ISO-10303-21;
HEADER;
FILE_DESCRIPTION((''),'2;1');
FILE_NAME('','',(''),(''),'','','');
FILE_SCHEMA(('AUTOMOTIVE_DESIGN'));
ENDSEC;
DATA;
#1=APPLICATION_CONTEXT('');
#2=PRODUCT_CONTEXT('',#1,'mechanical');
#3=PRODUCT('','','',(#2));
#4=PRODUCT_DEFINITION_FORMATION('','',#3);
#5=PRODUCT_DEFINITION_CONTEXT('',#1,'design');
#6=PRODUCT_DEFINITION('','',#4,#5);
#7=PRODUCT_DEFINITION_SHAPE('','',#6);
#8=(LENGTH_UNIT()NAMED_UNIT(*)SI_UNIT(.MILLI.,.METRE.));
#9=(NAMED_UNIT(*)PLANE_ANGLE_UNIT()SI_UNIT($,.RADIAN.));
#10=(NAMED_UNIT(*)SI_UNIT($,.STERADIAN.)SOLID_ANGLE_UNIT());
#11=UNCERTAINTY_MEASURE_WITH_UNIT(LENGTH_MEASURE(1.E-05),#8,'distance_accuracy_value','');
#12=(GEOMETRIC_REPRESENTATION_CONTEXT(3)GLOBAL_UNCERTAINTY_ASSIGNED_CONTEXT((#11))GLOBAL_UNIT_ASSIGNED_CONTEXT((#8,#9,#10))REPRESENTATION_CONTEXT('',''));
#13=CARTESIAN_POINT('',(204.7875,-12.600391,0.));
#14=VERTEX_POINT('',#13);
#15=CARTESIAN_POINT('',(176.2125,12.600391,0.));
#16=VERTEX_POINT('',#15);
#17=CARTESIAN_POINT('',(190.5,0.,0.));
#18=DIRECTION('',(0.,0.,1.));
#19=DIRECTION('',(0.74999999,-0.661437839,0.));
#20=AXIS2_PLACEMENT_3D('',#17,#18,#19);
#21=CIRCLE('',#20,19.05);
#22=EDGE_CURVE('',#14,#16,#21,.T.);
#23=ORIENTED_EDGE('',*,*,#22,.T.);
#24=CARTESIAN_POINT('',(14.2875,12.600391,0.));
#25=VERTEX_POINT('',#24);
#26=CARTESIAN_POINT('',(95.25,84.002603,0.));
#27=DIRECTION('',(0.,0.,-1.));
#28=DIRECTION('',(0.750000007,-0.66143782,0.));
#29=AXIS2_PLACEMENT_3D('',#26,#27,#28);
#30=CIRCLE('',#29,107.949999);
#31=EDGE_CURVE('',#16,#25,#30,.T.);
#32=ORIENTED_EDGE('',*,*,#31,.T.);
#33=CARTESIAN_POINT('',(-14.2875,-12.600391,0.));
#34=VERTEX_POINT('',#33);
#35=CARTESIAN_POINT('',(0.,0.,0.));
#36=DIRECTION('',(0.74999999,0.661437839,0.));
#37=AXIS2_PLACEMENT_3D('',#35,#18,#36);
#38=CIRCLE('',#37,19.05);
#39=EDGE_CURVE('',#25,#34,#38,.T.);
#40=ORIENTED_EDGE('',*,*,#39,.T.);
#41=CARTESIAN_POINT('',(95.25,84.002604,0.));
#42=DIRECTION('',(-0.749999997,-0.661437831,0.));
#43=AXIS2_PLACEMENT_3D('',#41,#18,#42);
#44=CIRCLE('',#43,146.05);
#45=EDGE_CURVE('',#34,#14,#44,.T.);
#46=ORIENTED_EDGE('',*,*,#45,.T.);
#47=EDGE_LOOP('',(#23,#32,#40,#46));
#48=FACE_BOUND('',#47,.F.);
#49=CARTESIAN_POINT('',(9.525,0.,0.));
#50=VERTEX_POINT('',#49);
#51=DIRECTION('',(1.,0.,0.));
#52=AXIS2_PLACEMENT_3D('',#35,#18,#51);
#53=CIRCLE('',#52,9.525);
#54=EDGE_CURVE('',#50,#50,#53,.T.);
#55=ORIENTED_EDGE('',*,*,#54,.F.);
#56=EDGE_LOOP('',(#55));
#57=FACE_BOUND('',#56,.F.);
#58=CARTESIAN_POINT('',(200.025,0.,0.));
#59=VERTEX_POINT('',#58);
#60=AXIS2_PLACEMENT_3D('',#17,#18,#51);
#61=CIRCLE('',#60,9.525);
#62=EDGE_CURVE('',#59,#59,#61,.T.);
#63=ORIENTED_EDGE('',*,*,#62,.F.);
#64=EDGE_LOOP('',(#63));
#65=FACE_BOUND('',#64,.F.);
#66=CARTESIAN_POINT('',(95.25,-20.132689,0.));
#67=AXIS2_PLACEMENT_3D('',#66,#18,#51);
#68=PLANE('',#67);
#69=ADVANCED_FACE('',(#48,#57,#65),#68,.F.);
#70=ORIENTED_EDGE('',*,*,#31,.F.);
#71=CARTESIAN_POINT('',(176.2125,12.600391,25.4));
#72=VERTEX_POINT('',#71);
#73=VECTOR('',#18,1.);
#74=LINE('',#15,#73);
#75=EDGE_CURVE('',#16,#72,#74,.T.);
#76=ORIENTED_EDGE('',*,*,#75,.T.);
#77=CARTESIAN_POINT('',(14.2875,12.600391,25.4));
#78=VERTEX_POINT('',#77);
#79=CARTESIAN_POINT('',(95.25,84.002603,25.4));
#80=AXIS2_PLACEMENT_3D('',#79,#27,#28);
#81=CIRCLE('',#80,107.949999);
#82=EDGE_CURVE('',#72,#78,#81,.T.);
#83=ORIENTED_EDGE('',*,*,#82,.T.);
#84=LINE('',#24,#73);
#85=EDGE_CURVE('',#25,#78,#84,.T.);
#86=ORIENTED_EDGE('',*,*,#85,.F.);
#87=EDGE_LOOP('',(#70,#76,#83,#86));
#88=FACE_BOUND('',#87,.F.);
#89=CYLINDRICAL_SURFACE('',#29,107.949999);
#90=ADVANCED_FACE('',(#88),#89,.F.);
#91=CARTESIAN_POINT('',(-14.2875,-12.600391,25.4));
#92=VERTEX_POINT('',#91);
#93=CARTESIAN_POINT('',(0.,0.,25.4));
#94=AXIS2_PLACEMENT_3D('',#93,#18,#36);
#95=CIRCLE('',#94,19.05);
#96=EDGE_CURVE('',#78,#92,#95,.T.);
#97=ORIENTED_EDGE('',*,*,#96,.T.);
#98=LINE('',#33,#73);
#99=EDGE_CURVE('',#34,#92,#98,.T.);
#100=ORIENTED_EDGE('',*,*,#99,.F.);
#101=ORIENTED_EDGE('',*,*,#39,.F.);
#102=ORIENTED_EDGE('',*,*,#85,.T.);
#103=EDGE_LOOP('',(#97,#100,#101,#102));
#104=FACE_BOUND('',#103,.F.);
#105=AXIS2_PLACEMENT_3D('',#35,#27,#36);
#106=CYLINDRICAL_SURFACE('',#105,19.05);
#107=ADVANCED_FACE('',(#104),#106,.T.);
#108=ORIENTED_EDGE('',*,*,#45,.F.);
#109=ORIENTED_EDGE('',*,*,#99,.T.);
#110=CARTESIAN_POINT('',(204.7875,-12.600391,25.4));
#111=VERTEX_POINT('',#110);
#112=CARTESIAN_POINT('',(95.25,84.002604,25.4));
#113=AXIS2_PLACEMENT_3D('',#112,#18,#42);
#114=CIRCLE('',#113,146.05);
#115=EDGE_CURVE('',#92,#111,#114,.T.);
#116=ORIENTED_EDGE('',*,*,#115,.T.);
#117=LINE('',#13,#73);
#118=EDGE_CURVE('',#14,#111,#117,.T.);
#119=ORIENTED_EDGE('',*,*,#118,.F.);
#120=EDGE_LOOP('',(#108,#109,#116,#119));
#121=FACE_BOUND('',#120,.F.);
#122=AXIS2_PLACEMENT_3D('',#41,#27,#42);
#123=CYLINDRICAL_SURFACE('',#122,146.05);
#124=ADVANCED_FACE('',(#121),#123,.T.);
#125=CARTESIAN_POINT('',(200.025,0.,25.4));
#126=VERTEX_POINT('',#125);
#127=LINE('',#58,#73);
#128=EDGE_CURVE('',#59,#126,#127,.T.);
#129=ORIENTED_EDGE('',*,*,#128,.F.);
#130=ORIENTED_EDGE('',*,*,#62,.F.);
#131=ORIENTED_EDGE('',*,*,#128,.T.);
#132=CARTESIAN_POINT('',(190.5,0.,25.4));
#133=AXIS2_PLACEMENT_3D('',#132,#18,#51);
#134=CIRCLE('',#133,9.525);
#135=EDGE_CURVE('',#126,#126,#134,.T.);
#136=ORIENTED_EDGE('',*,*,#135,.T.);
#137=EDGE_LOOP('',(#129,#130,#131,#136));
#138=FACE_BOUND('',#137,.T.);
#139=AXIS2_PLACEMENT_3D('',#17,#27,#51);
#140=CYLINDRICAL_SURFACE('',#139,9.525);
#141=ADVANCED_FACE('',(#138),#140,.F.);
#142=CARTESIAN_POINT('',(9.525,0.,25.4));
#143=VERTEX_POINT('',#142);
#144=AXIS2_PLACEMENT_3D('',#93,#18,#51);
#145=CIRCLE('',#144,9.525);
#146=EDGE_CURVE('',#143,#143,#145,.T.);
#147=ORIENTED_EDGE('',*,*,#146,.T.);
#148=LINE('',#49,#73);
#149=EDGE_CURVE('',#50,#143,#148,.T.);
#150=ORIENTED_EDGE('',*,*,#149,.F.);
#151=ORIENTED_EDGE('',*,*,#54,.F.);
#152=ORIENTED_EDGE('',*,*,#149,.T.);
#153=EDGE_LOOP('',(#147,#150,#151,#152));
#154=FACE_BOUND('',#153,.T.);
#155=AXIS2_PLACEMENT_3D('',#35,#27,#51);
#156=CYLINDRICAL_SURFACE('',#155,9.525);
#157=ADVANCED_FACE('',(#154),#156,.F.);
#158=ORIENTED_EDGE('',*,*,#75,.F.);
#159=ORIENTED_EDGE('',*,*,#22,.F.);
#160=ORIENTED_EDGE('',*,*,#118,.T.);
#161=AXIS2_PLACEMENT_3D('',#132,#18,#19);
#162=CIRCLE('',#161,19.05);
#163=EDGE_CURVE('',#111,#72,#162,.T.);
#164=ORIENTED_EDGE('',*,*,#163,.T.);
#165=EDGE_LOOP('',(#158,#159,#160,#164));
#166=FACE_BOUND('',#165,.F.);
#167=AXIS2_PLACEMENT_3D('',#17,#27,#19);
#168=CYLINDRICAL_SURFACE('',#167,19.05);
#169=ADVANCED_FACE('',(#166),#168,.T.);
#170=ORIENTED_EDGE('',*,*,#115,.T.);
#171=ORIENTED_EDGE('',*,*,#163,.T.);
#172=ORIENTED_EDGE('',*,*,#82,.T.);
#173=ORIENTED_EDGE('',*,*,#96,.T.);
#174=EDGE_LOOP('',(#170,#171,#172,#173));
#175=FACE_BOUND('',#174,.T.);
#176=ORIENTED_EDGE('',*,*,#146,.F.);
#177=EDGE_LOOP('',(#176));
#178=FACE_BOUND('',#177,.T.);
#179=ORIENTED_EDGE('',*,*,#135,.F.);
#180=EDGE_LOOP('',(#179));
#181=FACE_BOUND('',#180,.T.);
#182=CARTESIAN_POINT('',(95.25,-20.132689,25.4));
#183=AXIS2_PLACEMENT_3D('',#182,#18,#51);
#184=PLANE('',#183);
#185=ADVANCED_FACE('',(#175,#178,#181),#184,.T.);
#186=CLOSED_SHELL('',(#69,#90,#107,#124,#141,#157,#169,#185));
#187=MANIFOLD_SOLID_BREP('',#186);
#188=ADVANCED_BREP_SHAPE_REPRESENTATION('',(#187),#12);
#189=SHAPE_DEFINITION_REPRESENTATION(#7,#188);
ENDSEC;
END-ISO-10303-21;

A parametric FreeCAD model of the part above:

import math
import FreeCAD as App
import Part
import Sketcher

V = App.Vector
Q = App.Units.Quantity

doc = App.newDocument("Part")
params = doc.addObject("Spreadsheet::Sheet", "Params")
for row, (alias, value) in enumerate([
    ("sketch1_diameter", "0.75 in"),
    ("sketch1_radius", "4.25 in"),
    ("sketch1_radius2", "0.75 in"),
    ("pad1_length", "1 in"),
], start=1):
    params.set(f"A{row}", alias)
    params.set(f"B{row}", "=" + value)
    params.setAlias(f"B{row}", alias)

body = doc.addObject("PartDesign::Body", "Body")

# Sketch on XY plane
sketch1 = doc.addObject("Sketcher::SketchObject", "Sketch")
body.addObject(sketch1)
sketch1.AttachmentSupport = (doc.XY_Plane, [""])
sketch1.MapMode = "FlatFace"
sketch1.addGeometry([
    Part.ArcOfCircle(Part.Circle(V(95, 84, 0), V(0, 0, 1), 108), math.radians(-139), math.radians(-41)),  # 0
    Part.ArcOfCircle(Part.Circle(V(0, 0, 0), V(0, 0, 1), 19), math.radians(41), math.radians(221)),  # 1
    Part.ArcOfCircle(Part.Circle(V(95, 84, 0), V(0, 0, 1), 146), math.radians(-139), math.radians(-41)),  # 2
    Part.ArcOfCircle(Part.Circle(V(190, 0, 0), V(0, 0, 1), 19), math.radians(-41), math.radians(139)),  # 3
    Part.Circle(V(0, 0, 0), V(0, 0, 1), 10),  # 4
    Part.Circle(V(190, 0, 0), V(0, 0, 1), 10),  # 5
], False)
sketch1.addConstraint([
    Sketcher.Constraint("Tangent", 0, 1, 1, 1),
    Sketcher.Constraint("Tangent", 1, 2, 2, 1),
    Sketcher.Constraint("Tangent", 2, 2, 3, 1),
    Sketcher.Constraint("Tangent", 3, 2, 0, 2),
    Sketcher.Constraint("Coincident", 1, 3, -1, 1),
    Sketcher.Constraint("Coincident", 4, 3, -1, 1),
    Sketcher.Constraint("Coincident", 2, 3, 0, 3),
    Sketcher.Constraint("Coincident", 5, 3, 3, 3),
    Sketcher.Constraint("Equal", 4, 5),
    Sketcher.Constraint("PointOnObject", 3, 3, -1),
    Sketcher.Constraint("Diameter", 4, Q("0.75 in")),
    Sketcher.Constraint("Radius", 0, Q("4.25 in")),
    Sketcher.Constraint("Radius", 1, Q("0.75 in")),
    Sketcher.Constraint("DistanceX", -1, 1, 3, 3, Q("7.5 in")),
])
sketch1.setExpression("Constraints[10]", "Params.sketch1_diameter")
sketch1.setExpression("Constraints[11]", "Params.sketch1_radius")
sketch1.setExpression("Constraints[12]", "Params.sketch1_radius2")
pad1 = doc.addObject("PartDesign::Pad", "Pad")
body.addObject(pad1)
pad1.Profile = sketch1
pad1.setExpression("Length", "Params.pad1_length")

doc.recompute()
